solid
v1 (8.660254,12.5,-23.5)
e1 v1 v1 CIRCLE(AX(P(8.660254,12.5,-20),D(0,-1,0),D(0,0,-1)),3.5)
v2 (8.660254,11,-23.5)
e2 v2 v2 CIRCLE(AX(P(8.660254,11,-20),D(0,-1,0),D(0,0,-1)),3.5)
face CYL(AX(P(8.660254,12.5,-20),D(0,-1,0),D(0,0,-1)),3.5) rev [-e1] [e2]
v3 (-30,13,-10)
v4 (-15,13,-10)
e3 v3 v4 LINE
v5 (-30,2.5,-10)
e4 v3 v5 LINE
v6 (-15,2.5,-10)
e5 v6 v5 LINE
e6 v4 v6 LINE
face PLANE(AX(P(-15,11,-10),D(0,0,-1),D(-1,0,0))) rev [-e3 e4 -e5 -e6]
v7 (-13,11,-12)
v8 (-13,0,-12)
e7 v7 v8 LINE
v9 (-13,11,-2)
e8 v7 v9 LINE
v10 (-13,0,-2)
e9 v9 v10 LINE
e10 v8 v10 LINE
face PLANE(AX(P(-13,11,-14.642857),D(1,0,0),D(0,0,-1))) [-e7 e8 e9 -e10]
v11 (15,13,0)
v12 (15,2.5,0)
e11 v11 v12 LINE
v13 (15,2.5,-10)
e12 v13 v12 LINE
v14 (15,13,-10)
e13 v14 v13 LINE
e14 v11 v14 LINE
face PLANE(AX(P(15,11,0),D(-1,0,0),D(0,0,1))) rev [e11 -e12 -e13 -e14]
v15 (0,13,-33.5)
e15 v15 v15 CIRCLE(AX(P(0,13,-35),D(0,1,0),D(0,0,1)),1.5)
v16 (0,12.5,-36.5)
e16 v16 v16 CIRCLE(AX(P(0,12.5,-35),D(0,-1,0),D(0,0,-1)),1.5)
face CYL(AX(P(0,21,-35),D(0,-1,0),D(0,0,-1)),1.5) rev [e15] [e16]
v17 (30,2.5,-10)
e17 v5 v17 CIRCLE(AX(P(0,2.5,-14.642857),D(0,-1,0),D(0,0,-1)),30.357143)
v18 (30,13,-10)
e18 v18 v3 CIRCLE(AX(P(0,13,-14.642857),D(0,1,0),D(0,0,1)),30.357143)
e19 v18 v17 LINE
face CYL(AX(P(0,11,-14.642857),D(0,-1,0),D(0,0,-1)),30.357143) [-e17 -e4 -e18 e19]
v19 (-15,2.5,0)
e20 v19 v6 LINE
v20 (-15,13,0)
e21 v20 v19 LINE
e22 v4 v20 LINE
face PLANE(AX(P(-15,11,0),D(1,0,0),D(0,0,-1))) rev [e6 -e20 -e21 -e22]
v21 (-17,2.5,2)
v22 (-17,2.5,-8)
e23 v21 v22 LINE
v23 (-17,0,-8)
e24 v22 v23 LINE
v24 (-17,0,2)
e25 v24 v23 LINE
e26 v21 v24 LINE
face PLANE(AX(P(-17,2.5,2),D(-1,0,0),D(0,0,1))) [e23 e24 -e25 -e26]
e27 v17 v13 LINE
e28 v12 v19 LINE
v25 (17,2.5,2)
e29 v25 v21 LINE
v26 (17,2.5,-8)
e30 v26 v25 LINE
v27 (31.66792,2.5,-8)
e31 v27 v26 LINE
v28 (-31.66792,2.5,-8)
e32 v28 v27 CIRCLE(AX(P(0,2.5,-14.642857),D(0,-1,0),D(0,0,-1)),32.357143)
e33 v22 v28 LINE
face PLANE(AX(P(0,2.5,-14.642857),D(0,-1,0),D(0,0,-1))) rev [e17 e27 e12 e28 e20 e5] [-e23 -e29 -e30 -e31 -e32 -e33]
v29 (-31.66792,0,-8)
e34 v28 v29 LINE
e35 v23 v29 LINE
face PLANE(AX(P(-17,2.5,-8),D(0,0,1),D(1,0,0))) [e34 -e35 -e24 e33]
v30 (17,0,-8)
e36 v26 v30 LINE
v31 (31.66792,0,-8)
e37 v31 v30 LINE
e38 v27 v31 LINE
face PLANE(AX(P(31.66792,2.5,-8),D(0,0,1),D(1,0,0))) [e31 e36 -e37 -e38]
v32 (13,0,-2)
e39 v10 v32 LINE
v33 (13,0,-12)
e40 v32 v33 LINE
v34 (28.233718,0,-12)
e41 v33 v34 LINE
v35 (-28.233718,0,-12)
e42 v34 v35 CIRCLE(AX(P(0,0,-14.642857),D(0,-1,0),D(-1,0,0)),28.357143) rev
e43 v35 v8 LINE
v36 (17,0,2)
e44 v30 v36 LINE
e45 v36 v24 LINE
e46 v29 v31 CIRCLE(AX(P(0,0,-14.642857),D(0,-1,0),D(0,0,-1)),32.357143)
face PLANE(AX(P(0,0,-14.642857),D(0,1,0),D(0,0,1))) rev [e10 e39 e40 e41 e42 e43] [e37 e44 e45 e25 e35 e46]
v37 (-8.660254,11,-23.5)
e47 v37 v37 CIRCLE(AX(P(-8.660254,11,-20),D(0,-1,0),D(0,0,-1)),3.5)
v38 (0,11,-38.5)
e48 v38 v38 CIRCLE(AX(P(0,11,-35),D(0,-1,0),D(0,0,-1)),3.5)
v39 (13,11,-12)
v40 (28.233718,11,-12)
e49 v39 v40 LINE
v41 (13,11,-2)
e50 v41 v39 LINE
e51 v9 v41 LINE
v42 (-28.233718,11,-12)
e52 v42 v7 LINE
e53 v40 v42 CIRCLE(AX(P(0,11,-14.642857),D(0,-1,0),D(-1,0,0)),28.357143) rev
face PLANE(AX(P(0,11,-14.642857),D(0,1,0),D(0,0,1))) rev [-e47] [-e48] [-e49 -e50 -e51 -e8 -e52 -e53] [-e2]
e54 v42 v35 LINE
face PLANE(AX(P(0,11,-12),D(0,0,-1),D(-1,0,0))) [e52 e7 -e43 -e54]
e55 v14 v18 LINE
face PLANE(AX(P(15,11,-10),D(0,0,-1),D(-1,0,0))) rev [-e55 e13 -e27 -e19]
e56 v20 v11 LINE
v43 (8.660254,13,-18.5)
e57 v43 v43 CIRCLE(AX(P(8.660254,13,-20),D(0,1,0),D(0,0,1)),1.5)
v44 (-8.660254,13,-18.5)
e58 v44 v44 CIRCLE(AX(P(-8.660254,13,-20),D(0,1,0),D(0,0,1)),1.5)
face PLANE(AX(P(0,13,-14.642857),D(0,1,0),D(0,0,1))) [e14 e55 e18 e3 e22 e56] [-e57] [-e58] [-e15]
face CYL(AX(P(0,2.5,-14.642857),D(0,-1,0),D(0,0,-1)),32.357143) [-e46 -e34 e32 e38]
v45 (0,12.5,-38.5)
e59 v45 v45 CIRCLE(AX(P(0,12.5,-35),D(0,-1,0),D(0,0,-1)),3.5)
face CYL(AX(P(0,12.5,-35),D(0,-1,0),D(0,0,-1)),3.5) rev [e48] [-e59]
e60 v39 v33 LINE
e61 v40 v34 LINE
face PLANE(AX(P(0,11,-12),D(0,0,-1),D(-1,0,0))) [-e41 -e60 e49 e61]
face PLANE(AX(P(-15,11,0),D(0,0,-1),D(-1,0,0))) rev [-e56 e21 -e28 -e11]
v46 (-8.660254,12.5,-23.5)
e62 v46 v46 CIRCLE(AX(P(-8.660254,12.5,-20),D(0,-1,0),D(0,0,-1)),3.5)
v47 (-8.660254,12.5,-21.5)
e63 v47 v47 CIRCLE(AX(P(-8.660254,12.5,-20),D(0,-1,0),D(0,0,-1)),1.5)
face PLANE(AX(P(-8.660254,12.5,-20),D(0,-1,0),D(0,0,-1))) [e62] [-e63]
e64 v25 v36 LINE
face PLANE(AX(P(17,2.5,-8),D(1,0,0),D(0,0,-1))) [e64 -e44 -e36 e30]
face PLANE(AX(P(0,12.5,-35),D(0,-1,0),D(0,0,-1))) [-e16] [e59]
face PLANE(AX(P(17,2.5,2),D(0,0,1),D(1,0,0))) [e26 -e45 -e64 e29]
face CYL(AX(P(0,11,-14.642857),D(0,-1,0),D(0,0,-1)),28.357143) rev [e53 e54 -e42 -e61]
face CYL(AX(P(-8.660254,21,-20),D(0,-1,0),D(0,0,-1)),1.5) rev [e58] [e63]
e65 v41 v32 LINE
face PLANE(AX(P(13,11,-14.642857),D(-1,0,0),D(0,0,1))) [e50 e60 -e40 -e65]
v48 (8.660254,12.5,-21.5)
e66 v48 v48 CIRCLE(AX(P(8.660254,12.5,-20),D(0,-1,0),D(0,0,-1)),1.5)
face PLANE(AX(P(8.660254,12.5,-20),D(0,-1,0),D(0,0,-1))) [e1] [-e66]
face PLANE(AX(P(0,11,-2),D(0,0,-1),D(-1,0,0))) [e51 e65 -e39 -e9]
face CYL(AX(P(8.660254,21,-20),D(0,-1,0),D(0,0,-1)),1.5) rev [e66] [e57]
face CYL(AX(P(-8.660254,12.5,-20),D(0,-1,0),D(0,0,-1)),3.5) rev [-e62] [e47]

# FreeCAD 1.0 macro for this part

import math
import FreeCAD as App
import Part
import Sketcher

doc = App.newDocument("Part")
body = doc.addObject("PartDesign::Body", "Body")

sketch1 = doc.addObject("Sketcher::SketchObject", "Sketch")
body.addObject(sketch1)
sketch1.AttachmentSupport = (doc.XZ_Plane, [""])
sketch1.MapMode = "FlatFace"
sketch1.addGeometry([
    Part.LineSegment(App.Vector(-30, -10, 0), App.Vector(-15, -10, 0)),
    Part.LineSegment(App.Vector(-15, -10, 0), App.Vector(-15, 0, 0)),
    Part.LineSegment(App.Vector(-15, 0, 0), App.Vector(15, 0, 0)),
    Part.LineSegment(App.Vector(15, 0, 0), App.Vector(15, -10, 0)),
    Part.LineSegment(App.Vector(15, -10, 0), App.Vector(30, -10, 0)),
    Part.ArcOfCircle(Part.Circle(App.Vector(0, -14.642857, 0), App.Vector(0, 0, 1), 30.357143), math.radians(171.202589), math.radians(368.797411)),
    Part.LineSegment(App.Vector(-13, -12, 0), App.Vector(-28.233718, -12, 0)),
    Part.ArcOfCircle(Part.Circle(App.Vector(0, -14.642857, 0), App.Vector(0, 0, 1), 28.357143), math.radians(174.65233), math.radians(365.34767)),
    Part.LineSegment(App.Vector(28.233718, -12, 0), App.Vector(13, -12, 0)),
    Part.LineSegment(App.Vector(13, -12, 0), App.Vector(13, -2, 0)),
    Part.LineSegment(App.Vector(13, -2, 0), App.Vector(-13, -2, 0)),
    Part.LineSegment(App.Vector(-13, -2, 0), App.Vector(-13, -12, 0)),
], False)
sketch1.addConstraint([
    Sketcher.Constraint("Coincident", 0, 2, 1, 1),
    Sketcher.Constraint("Coincident", 1, 2, 2, 1),
    Sketcher.Constraint("Coincident", 2, 2, 3, 1),
    Sketcher.Constraint("Coincident", 3, 2, 4, 1),
    Sketcher.Constraint("Coincident", 4, 2, 5, 2),
    Sketcher.Constraint("Coincident", 5, 1, 0, 1),
    Sketcher.Constraint("Coincident", 6, 2, 7, 1),
    Sketcher.Constraint("Coincident", 7, 2, 8, 1),
    Sketcher.Constraint("Coincident", 8, 2, 9, 1),
    Sketcher.Constraint("Coincident", 9, 2, 10, 1),
    Sketcher.Constraint("Coincident", 10, 2, 11, 1),
    Sketcher.Constraint("Coincident", 11, 2, 6, 1),
    Sketcher.Constraint("Horizontal", 0),
    Sketcher.Constraint("Vertical", 1),
    Sketcher.Constraint("Horizontal", 2),
    Sketcher.Constraint("Vertical", 3),
    Sketcher.Constraint("Horizontal", 4),
    Sketcher.Constraint("Horizontal", 6),
    Sketcher.Constraint("Horizontal", 8),
    Sketcher.Constraint("Vertical", 9),
    Sketcher.Constraint("Horizontal", 10),
    Sketcher.Constraint("Vertical", 11),
    Sketcher.Constraint("Coincident", 7, 3, 5, 3),
    Sketcher.Constraint("Symmetric", 1, 2, 2, 2, -1, 1),
    Sketcher.Constraint("Symmetric", 4, 2, 5, 1, -2),
    Sketcher.Constraint("Symmetric", 8, 2, 11, 2, -2),
    Sketcher.Constraint("Equal", 3, 9),
    Sketcher.Constraint("DistanceX", 0, 1, 0, 2, 15.0),
    Sketcher.Constraint("DistanceX", 2, 1, 2, 2, 30.0),
    Sketcher.Constraint("DistanceX", 10, 2, 10, 1, 26.0),
    Sketcher.Constraint("DistanceY", 1, 1, 1, 2, 10.0),
    Sketcher.Constraint("DistanceY", 6, 2, -1, 1, 12.0),
    Sketcher.Constraint("Radius", 5, 30.357143),
    Sketcher.Constraint("Radius", 7, 28.357143),
])
pad1 = doc.addObject("PartDesign::Pad", "Pad")
body.addObject(pad1)
pad1.Profile = sketch1
pad1.Length = 11
pad1.Reversed = True

sketch2 = doc.addObject("Sketcher::SketchObject", "Sketch001")
body.addObject(sketch2)
sketch2.AttachmentSupport = (doc.XZ_Plane, [""])
sketch2.MapMode = "FlatFace"
sketch2.AttachmentOffset = App.Placement(App.Vector(0, 0, -11), App.Rotation())
sketch2.addGeometry([
    Part.LineSegment(App.Vector(15, -10, 0), App.Vector(30, -10, 0)),
    Part.ArcOfCircle(Part.Circle(App.Vector(0, -14.642857, 0), App.Vector(0, 0, 1), 30.357143), math.radians(171.202589), math.radians(368.797411)),
    Part.LineSegment(App.Vector(-30, -10, 0), App.Vector(-15, -10, 0)),
    Part.LineSegment(App.Vector(-15, -10, 0), App.Vector(-15, 0, 0)),
    Part.LineSegment(App.Vector(-15, 0, 0), App.Vector(15, 0, 0)),
    Part.LineSegment(App.Vector(15, 0, 0), App.Vector(15, -10, 0)),
], False)
sketch2.addConstraint([
    Sketcher.Constraint("Coincident", 0, 2, 1, 2),
    Sketcher.Constraint("Coincident", 1, 1, 2, 1),
    Sketcher.Constraint("Coincident", 2, 2, 3, 1),
    Sketcher.Constraint("Coincident", 3, 2, 4, 1),
    Sketcher.Constraint("Coincident", 4, 2, 5, 1),
    Sketcher.Constraint("Coincident", 5, 2, 0, 1),
    Sketcher.Constraint("Horizontal", 0),
    Sketcher.Constraint("Horizontal", 2),
    Sketcher.Constraint("Vertical", 3),
    Sketcher.Constraint("Horizontal", 4),
    Sketcher.Constraint("Vertical", 5),
    Sketcher.Constraint("Symmetric", 3, 2, 4, 2, -1, 1),
    Sketcher.Constraint("Symmetric", 0, 2, 1, 1, -2),
    Sketcher.Constraint("DistanceX", 0, 1, 0, 2, 15.0),
    Sketcher.Constraint("DistanceX", 4, 1, 4, 2, 30.0),
    Sketcher.Constraint("DistanceY", 3, 1, 3, 2, 10.0),
    Sketcher.Constraint("Radius", 1, 30.357143),
])
pad2 = doc.addObject("PartDesign::Pad", "Pad001")
body.addObject(pad2)
pad2.Profile = sketch2
pad2.Length = 2
pad2.Reversed = True

sketch3 = doc.addObject("Sketcher::SketchObject", "Sketch002")
body.addObject(sketch3)
sketch3.AttachmentSupport = (doc.XZ_Plane, [""])
sketch3.MapMode = "FlatFace"
sketch3.AttachmentOffset = App.Placement(App.Vector(0, 0, -11), App.Rotation())
sketch3.addGeometry([
    Part.Circle(App.Vector(-8.660254, -20, 0), App.Vector(0, 0, 1), 3.5),
    Part.Circle(App.Vector(8.660254, -20, 0), App.Vector(0, 0, 1), 3.5),
    Part.Circle(App.Vector(0, -35, 0), App.Vector(0, 0, 1), 3.5),
], False)
sketch3.addConstraint([
    Sketcher.Constraint("Equal", 0, 1),
    Sketcher.Constraint("Equal", 1, 2),
    Sketcher.Constraint("Symmetric", 0, 3, 1, 3, -2),
    Sketcher.Constraint("PointOnObject", 2, 3, -2),
    Sketcher.Constraint("Diameter", 0, 7.0),
    Sketcher.Constraint("DistanceY", 0, 3, -1, 1, 20.0),
    Sketcher.Constraint("DistanceY", 2, 3, -1, 1, 35.0),
    Sketcher.Constraint("DistanceX", 0, 3, 1, 3, 17.320508),
])
pocket1 = doc.addObject("PartDesign::Pocket", "Pocket")
body.addObject(pocket1)
pocket1.Profile = sketch3
pocket1.Length = 1.5

sketch4 = doc.addObject("Sketcher::SketchObject", "Sketch003")
body.addObject(sketch4)
sketch4.AttachmentSupport = (doc.XZ_Plane, [""])
sketch4.MapMode = "FlatFace"
sketch4.addGeometry([
    Part.LineSegment(App.Vector(17, 2, 0), App.Vector(-17, 2, 0)),
    Part.LineSegment(App.Vector(-17, 2, 0), App.Vector(-17, -8, 0)),
    Part.LineSegment(App.Vector(-17, -8, 0), App.Vector(-31.66792, -8, 0)),
    Part.ArcOfCircle(Part.Circle(App.Vector(0, -14.642857, 0), App.Vector(0, 0, 1), 32.357143), math.radians(168.153055), math.radians(371.846945)),
    Part.LineSegment(App.Vector(31.66792, -8, 0), App.Vector(17, -8, 0)),
    Part.LineSegment(App.Vector(17, -8, 0), App.Vector(17, 2, 0)),
    Part.LineSegment(App.Vector(13, -2, 0), App.Vector(13, -12, 0)),
    Part.LineSegment(App.Vector(13, -12, 0), App.Vector(28.233718, -12, 0)),
    Part.ArcOfCircle(Part.Circle(App.Vector(0, -14.642857, 0), App.Vector(0, 0, 1), 28.357143), math.radians(174.65233), math.radians(365.34767)),
    Part.LineSegment(App.Vector(-28.233718, -12, 0), App.Vector(-13, -12, 0)),
    Part.LineSegment(App.Vector(-13, -12, 0), App.Vector(-13, -2, 0)),
    Part.LineSegment(App.Vector(-13, -2, 0), App.Vector(13, -2, 0)),
], False)
sketch4.addConstraint([
    Sketcher.Constraint("Coincident", 0, 2, 1, 1),
    Sketcher.Constraint("Coincident", 1, 2, 2, 1),
    Sketcher.Constraint("Coincident", 2, 2, 3, 1),
    Sketcher.Constraint("Coincident", 3, 2, 4, 1),
    Sketcher.Constraint("Coincident", 4, 2, 5, 1),
    Sketcher.Constraint("Coincident", 5, 2, 0, 1),
    Sketcher.Constraint("Coincident", 6, 2, 7, 1),
    Sketcher.Constraint("Coincident", 7, 2, 8, 2),
    Sketcher.Constraint("Coincident", 8, 1, 9, 1),
    Sketcher.Constraint("Coincident", 9, 2, 10, 1),
    Sketcher.Constraint("Coincident", 10, 2, 11, 1),
    Sketcher.Constraint("Coincident", 11, 2, 6, 1),
    Sketcher.Constraint("Horizontal", 0),
    Sketcher.Constraint("Vertical", 1),
    Sketcher.Constraint("Horizontal", 2),
    Sketcher.Constraint("Horizontal", 4),
    Sketcher.Constraint("Vertical", 5),
    Sketcher.Constraint("Vertical", 6),
    Sketcher.Constraint("Horizontal", 7),
    Sketcher.Constraint("Horizontal", 9),
    Sketcher.Constraint("Vertical", 10),
    Sketcher.Constraint("Horizontal", 11),
    Sketcher.Constraint("Coincident", 8, 3, 3, 3),
    Sketcher.Constraint("Symmetric", 2, 2, 3, 2, -2),
    Sketcher.Constraint("Symmetric", 6, 2, 9, 2, -2),
    Sketcher.Constraint("Equal", 2, 4),
    Sketcher.Constraint("Equal", 5, 6),
    Sketcher.Constraint("DistanceX", 0, 2, 0, 1, 34.0),
    Sketcher.Constraint("DistanceX", 11, 1, 11, 2, 26.0),
    Sketcher.Constraint("DistanceY", 1, 2, 1, 1, 10.0),
    Sketcher.Constraint("DistanceY", -1, 1, 0, 2, 2.0),
    Sketcher.Constraint("DistanceY", 6, 2, -1, 1, 12.0),
    Sketcher.Constraint("Radius", 3, 32.357143),
    Sketcher.Constraint("Radius", 8, 28.357143),
    Sketcher.Constraint("DistanceX", 2, 2, 2, 1, 14.66792),
])
pad3 = doc.addObject("PartDesign::Pad", "Pad002")
body.addObject(pad3)
pad3.Profile = sketch4
pad3.Length = 2.5
pad3.Reversed = True

sketch5 = doc.addObject("Sketcher::SketchObject", "Sketch004")
body.addObject(sketch5)
sketch5.AttachmentSupport = (doc.XZ_Plane, [""])
sketch5.MapMode = "FlatFace"
sketch5.AttachmentOffset = App.Placement(App.Vector(0, 0, -11), App.Rotation())
sketch5.addGeometry([
    Part.Circle(App.Vector(-8.660254, -20, 0), App.Vector(0, 0, 1), 1.5),
    Part.Circle(App.Vector(8.660254, -20, 0), App.Vector(0, 0, 1), 1.5),
    Part.Circle(App.Vector(0, -35, 0), App.Vector(0, 0, 1), 1.5),
], False)
sketch5.addConstraint([
    Sketcher.Constraint("Equal", 0, 1),
    Sketcher.Constraint("Equal", 1, 2),
    Sketcher.Constraint("Symmetric", 0, 3, 1, 3, -2),
    Sketcher.Constraint("PointOnObject", 2, 3, -2),
    Sketcher.Constraint("Diameter", 0, 3.0),
    Sketcher.Constraint("DistanceY", 0, 3, -1, 1, 20.0),
    Sketcher.Constraint("DistanceY", 2, 3, -1, 1, 35.0),
    Sketcher.Constraint("DistanceX", 0, 3, 1, 3, 17.320508),
])
pocket2 = doc.addObject("PartDesign::Pocket", "Pocket001")
body.addObject(pocket2)
pocket2.Profile = sketch5
pocket2.Length = 10

doc.recompute()
